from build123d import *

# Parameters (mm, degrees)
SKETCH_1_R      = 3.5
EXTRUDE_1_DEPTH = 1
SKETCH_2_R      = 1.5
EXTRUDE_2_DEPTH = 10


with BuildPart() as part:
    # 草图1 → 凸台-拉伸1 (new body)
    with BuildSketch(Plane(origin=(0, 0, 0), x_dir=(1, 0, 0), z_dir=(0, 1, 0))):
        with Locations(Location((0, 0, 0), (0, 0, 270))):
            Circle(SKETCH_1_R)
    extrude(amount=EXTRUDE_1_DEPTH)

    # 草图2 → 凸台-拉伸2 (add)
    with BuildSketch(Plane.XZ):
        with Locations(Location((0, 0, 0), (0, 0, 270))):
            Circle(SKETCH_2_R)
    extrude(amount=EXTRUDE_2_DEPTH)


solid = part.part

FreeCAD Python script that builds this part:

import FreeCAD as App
import Part
import Sketcher

doc = App.newDocument("Part")
body = doc.addObject("PartDesign::Body", "Body")

sketch1 = doc.addObject("Sketcher::SketchObject", "Sketch")
body.addObject(sketch1)
sketch1.AttachmentSupport = (doc.XZ_Plane, [""])
sketch1.MapMode = "FlatFace"
sketch1.addGeometry(Part.Circle(App.Vector(0, 0, 0), App.Vector(0, 0, 1), 3.5), False)
sketch1.addConstraint(Sketcher.Constraint("Coincident", 0, 3, -1, 1))
sketch1.addConstraint(Sketcher.Constraint("Diameter", 0, 7.0))
pad1 = doc.addObject("PartDesign::Pad", "Pad")
body.addObject(pad1)
pad1.Profile = sketch1
pad1.Length = 1
pad1.Reversed = True

sketch2 = doc.addObject("Sketcher::SketchObject", "Sketch001")
body.addObject(sketch2)
sketch2.AttachmentSupport = (doc.XZ_Plane, [""])
sketch2.MapMode = "FlatFace"
sketch2.addGeometry(Part.Circle(App.Vector(0, 0, 0), App.Vector(0, 0, 1), 1.5), False)
sketch2.addConstraint(Sketcher.Constraint("Coincident", 0, 3, -1, 1))
sketch2.addConstraint(Sketcher.Constraint("Diameter", 0, 3.0))
pad2 = doc.addObject("PartDesign::Pad", "Pad001")
body.addObject(pad2)
pad2.Profile = sketch2
pad2.Length = 10

doc.recompute()
